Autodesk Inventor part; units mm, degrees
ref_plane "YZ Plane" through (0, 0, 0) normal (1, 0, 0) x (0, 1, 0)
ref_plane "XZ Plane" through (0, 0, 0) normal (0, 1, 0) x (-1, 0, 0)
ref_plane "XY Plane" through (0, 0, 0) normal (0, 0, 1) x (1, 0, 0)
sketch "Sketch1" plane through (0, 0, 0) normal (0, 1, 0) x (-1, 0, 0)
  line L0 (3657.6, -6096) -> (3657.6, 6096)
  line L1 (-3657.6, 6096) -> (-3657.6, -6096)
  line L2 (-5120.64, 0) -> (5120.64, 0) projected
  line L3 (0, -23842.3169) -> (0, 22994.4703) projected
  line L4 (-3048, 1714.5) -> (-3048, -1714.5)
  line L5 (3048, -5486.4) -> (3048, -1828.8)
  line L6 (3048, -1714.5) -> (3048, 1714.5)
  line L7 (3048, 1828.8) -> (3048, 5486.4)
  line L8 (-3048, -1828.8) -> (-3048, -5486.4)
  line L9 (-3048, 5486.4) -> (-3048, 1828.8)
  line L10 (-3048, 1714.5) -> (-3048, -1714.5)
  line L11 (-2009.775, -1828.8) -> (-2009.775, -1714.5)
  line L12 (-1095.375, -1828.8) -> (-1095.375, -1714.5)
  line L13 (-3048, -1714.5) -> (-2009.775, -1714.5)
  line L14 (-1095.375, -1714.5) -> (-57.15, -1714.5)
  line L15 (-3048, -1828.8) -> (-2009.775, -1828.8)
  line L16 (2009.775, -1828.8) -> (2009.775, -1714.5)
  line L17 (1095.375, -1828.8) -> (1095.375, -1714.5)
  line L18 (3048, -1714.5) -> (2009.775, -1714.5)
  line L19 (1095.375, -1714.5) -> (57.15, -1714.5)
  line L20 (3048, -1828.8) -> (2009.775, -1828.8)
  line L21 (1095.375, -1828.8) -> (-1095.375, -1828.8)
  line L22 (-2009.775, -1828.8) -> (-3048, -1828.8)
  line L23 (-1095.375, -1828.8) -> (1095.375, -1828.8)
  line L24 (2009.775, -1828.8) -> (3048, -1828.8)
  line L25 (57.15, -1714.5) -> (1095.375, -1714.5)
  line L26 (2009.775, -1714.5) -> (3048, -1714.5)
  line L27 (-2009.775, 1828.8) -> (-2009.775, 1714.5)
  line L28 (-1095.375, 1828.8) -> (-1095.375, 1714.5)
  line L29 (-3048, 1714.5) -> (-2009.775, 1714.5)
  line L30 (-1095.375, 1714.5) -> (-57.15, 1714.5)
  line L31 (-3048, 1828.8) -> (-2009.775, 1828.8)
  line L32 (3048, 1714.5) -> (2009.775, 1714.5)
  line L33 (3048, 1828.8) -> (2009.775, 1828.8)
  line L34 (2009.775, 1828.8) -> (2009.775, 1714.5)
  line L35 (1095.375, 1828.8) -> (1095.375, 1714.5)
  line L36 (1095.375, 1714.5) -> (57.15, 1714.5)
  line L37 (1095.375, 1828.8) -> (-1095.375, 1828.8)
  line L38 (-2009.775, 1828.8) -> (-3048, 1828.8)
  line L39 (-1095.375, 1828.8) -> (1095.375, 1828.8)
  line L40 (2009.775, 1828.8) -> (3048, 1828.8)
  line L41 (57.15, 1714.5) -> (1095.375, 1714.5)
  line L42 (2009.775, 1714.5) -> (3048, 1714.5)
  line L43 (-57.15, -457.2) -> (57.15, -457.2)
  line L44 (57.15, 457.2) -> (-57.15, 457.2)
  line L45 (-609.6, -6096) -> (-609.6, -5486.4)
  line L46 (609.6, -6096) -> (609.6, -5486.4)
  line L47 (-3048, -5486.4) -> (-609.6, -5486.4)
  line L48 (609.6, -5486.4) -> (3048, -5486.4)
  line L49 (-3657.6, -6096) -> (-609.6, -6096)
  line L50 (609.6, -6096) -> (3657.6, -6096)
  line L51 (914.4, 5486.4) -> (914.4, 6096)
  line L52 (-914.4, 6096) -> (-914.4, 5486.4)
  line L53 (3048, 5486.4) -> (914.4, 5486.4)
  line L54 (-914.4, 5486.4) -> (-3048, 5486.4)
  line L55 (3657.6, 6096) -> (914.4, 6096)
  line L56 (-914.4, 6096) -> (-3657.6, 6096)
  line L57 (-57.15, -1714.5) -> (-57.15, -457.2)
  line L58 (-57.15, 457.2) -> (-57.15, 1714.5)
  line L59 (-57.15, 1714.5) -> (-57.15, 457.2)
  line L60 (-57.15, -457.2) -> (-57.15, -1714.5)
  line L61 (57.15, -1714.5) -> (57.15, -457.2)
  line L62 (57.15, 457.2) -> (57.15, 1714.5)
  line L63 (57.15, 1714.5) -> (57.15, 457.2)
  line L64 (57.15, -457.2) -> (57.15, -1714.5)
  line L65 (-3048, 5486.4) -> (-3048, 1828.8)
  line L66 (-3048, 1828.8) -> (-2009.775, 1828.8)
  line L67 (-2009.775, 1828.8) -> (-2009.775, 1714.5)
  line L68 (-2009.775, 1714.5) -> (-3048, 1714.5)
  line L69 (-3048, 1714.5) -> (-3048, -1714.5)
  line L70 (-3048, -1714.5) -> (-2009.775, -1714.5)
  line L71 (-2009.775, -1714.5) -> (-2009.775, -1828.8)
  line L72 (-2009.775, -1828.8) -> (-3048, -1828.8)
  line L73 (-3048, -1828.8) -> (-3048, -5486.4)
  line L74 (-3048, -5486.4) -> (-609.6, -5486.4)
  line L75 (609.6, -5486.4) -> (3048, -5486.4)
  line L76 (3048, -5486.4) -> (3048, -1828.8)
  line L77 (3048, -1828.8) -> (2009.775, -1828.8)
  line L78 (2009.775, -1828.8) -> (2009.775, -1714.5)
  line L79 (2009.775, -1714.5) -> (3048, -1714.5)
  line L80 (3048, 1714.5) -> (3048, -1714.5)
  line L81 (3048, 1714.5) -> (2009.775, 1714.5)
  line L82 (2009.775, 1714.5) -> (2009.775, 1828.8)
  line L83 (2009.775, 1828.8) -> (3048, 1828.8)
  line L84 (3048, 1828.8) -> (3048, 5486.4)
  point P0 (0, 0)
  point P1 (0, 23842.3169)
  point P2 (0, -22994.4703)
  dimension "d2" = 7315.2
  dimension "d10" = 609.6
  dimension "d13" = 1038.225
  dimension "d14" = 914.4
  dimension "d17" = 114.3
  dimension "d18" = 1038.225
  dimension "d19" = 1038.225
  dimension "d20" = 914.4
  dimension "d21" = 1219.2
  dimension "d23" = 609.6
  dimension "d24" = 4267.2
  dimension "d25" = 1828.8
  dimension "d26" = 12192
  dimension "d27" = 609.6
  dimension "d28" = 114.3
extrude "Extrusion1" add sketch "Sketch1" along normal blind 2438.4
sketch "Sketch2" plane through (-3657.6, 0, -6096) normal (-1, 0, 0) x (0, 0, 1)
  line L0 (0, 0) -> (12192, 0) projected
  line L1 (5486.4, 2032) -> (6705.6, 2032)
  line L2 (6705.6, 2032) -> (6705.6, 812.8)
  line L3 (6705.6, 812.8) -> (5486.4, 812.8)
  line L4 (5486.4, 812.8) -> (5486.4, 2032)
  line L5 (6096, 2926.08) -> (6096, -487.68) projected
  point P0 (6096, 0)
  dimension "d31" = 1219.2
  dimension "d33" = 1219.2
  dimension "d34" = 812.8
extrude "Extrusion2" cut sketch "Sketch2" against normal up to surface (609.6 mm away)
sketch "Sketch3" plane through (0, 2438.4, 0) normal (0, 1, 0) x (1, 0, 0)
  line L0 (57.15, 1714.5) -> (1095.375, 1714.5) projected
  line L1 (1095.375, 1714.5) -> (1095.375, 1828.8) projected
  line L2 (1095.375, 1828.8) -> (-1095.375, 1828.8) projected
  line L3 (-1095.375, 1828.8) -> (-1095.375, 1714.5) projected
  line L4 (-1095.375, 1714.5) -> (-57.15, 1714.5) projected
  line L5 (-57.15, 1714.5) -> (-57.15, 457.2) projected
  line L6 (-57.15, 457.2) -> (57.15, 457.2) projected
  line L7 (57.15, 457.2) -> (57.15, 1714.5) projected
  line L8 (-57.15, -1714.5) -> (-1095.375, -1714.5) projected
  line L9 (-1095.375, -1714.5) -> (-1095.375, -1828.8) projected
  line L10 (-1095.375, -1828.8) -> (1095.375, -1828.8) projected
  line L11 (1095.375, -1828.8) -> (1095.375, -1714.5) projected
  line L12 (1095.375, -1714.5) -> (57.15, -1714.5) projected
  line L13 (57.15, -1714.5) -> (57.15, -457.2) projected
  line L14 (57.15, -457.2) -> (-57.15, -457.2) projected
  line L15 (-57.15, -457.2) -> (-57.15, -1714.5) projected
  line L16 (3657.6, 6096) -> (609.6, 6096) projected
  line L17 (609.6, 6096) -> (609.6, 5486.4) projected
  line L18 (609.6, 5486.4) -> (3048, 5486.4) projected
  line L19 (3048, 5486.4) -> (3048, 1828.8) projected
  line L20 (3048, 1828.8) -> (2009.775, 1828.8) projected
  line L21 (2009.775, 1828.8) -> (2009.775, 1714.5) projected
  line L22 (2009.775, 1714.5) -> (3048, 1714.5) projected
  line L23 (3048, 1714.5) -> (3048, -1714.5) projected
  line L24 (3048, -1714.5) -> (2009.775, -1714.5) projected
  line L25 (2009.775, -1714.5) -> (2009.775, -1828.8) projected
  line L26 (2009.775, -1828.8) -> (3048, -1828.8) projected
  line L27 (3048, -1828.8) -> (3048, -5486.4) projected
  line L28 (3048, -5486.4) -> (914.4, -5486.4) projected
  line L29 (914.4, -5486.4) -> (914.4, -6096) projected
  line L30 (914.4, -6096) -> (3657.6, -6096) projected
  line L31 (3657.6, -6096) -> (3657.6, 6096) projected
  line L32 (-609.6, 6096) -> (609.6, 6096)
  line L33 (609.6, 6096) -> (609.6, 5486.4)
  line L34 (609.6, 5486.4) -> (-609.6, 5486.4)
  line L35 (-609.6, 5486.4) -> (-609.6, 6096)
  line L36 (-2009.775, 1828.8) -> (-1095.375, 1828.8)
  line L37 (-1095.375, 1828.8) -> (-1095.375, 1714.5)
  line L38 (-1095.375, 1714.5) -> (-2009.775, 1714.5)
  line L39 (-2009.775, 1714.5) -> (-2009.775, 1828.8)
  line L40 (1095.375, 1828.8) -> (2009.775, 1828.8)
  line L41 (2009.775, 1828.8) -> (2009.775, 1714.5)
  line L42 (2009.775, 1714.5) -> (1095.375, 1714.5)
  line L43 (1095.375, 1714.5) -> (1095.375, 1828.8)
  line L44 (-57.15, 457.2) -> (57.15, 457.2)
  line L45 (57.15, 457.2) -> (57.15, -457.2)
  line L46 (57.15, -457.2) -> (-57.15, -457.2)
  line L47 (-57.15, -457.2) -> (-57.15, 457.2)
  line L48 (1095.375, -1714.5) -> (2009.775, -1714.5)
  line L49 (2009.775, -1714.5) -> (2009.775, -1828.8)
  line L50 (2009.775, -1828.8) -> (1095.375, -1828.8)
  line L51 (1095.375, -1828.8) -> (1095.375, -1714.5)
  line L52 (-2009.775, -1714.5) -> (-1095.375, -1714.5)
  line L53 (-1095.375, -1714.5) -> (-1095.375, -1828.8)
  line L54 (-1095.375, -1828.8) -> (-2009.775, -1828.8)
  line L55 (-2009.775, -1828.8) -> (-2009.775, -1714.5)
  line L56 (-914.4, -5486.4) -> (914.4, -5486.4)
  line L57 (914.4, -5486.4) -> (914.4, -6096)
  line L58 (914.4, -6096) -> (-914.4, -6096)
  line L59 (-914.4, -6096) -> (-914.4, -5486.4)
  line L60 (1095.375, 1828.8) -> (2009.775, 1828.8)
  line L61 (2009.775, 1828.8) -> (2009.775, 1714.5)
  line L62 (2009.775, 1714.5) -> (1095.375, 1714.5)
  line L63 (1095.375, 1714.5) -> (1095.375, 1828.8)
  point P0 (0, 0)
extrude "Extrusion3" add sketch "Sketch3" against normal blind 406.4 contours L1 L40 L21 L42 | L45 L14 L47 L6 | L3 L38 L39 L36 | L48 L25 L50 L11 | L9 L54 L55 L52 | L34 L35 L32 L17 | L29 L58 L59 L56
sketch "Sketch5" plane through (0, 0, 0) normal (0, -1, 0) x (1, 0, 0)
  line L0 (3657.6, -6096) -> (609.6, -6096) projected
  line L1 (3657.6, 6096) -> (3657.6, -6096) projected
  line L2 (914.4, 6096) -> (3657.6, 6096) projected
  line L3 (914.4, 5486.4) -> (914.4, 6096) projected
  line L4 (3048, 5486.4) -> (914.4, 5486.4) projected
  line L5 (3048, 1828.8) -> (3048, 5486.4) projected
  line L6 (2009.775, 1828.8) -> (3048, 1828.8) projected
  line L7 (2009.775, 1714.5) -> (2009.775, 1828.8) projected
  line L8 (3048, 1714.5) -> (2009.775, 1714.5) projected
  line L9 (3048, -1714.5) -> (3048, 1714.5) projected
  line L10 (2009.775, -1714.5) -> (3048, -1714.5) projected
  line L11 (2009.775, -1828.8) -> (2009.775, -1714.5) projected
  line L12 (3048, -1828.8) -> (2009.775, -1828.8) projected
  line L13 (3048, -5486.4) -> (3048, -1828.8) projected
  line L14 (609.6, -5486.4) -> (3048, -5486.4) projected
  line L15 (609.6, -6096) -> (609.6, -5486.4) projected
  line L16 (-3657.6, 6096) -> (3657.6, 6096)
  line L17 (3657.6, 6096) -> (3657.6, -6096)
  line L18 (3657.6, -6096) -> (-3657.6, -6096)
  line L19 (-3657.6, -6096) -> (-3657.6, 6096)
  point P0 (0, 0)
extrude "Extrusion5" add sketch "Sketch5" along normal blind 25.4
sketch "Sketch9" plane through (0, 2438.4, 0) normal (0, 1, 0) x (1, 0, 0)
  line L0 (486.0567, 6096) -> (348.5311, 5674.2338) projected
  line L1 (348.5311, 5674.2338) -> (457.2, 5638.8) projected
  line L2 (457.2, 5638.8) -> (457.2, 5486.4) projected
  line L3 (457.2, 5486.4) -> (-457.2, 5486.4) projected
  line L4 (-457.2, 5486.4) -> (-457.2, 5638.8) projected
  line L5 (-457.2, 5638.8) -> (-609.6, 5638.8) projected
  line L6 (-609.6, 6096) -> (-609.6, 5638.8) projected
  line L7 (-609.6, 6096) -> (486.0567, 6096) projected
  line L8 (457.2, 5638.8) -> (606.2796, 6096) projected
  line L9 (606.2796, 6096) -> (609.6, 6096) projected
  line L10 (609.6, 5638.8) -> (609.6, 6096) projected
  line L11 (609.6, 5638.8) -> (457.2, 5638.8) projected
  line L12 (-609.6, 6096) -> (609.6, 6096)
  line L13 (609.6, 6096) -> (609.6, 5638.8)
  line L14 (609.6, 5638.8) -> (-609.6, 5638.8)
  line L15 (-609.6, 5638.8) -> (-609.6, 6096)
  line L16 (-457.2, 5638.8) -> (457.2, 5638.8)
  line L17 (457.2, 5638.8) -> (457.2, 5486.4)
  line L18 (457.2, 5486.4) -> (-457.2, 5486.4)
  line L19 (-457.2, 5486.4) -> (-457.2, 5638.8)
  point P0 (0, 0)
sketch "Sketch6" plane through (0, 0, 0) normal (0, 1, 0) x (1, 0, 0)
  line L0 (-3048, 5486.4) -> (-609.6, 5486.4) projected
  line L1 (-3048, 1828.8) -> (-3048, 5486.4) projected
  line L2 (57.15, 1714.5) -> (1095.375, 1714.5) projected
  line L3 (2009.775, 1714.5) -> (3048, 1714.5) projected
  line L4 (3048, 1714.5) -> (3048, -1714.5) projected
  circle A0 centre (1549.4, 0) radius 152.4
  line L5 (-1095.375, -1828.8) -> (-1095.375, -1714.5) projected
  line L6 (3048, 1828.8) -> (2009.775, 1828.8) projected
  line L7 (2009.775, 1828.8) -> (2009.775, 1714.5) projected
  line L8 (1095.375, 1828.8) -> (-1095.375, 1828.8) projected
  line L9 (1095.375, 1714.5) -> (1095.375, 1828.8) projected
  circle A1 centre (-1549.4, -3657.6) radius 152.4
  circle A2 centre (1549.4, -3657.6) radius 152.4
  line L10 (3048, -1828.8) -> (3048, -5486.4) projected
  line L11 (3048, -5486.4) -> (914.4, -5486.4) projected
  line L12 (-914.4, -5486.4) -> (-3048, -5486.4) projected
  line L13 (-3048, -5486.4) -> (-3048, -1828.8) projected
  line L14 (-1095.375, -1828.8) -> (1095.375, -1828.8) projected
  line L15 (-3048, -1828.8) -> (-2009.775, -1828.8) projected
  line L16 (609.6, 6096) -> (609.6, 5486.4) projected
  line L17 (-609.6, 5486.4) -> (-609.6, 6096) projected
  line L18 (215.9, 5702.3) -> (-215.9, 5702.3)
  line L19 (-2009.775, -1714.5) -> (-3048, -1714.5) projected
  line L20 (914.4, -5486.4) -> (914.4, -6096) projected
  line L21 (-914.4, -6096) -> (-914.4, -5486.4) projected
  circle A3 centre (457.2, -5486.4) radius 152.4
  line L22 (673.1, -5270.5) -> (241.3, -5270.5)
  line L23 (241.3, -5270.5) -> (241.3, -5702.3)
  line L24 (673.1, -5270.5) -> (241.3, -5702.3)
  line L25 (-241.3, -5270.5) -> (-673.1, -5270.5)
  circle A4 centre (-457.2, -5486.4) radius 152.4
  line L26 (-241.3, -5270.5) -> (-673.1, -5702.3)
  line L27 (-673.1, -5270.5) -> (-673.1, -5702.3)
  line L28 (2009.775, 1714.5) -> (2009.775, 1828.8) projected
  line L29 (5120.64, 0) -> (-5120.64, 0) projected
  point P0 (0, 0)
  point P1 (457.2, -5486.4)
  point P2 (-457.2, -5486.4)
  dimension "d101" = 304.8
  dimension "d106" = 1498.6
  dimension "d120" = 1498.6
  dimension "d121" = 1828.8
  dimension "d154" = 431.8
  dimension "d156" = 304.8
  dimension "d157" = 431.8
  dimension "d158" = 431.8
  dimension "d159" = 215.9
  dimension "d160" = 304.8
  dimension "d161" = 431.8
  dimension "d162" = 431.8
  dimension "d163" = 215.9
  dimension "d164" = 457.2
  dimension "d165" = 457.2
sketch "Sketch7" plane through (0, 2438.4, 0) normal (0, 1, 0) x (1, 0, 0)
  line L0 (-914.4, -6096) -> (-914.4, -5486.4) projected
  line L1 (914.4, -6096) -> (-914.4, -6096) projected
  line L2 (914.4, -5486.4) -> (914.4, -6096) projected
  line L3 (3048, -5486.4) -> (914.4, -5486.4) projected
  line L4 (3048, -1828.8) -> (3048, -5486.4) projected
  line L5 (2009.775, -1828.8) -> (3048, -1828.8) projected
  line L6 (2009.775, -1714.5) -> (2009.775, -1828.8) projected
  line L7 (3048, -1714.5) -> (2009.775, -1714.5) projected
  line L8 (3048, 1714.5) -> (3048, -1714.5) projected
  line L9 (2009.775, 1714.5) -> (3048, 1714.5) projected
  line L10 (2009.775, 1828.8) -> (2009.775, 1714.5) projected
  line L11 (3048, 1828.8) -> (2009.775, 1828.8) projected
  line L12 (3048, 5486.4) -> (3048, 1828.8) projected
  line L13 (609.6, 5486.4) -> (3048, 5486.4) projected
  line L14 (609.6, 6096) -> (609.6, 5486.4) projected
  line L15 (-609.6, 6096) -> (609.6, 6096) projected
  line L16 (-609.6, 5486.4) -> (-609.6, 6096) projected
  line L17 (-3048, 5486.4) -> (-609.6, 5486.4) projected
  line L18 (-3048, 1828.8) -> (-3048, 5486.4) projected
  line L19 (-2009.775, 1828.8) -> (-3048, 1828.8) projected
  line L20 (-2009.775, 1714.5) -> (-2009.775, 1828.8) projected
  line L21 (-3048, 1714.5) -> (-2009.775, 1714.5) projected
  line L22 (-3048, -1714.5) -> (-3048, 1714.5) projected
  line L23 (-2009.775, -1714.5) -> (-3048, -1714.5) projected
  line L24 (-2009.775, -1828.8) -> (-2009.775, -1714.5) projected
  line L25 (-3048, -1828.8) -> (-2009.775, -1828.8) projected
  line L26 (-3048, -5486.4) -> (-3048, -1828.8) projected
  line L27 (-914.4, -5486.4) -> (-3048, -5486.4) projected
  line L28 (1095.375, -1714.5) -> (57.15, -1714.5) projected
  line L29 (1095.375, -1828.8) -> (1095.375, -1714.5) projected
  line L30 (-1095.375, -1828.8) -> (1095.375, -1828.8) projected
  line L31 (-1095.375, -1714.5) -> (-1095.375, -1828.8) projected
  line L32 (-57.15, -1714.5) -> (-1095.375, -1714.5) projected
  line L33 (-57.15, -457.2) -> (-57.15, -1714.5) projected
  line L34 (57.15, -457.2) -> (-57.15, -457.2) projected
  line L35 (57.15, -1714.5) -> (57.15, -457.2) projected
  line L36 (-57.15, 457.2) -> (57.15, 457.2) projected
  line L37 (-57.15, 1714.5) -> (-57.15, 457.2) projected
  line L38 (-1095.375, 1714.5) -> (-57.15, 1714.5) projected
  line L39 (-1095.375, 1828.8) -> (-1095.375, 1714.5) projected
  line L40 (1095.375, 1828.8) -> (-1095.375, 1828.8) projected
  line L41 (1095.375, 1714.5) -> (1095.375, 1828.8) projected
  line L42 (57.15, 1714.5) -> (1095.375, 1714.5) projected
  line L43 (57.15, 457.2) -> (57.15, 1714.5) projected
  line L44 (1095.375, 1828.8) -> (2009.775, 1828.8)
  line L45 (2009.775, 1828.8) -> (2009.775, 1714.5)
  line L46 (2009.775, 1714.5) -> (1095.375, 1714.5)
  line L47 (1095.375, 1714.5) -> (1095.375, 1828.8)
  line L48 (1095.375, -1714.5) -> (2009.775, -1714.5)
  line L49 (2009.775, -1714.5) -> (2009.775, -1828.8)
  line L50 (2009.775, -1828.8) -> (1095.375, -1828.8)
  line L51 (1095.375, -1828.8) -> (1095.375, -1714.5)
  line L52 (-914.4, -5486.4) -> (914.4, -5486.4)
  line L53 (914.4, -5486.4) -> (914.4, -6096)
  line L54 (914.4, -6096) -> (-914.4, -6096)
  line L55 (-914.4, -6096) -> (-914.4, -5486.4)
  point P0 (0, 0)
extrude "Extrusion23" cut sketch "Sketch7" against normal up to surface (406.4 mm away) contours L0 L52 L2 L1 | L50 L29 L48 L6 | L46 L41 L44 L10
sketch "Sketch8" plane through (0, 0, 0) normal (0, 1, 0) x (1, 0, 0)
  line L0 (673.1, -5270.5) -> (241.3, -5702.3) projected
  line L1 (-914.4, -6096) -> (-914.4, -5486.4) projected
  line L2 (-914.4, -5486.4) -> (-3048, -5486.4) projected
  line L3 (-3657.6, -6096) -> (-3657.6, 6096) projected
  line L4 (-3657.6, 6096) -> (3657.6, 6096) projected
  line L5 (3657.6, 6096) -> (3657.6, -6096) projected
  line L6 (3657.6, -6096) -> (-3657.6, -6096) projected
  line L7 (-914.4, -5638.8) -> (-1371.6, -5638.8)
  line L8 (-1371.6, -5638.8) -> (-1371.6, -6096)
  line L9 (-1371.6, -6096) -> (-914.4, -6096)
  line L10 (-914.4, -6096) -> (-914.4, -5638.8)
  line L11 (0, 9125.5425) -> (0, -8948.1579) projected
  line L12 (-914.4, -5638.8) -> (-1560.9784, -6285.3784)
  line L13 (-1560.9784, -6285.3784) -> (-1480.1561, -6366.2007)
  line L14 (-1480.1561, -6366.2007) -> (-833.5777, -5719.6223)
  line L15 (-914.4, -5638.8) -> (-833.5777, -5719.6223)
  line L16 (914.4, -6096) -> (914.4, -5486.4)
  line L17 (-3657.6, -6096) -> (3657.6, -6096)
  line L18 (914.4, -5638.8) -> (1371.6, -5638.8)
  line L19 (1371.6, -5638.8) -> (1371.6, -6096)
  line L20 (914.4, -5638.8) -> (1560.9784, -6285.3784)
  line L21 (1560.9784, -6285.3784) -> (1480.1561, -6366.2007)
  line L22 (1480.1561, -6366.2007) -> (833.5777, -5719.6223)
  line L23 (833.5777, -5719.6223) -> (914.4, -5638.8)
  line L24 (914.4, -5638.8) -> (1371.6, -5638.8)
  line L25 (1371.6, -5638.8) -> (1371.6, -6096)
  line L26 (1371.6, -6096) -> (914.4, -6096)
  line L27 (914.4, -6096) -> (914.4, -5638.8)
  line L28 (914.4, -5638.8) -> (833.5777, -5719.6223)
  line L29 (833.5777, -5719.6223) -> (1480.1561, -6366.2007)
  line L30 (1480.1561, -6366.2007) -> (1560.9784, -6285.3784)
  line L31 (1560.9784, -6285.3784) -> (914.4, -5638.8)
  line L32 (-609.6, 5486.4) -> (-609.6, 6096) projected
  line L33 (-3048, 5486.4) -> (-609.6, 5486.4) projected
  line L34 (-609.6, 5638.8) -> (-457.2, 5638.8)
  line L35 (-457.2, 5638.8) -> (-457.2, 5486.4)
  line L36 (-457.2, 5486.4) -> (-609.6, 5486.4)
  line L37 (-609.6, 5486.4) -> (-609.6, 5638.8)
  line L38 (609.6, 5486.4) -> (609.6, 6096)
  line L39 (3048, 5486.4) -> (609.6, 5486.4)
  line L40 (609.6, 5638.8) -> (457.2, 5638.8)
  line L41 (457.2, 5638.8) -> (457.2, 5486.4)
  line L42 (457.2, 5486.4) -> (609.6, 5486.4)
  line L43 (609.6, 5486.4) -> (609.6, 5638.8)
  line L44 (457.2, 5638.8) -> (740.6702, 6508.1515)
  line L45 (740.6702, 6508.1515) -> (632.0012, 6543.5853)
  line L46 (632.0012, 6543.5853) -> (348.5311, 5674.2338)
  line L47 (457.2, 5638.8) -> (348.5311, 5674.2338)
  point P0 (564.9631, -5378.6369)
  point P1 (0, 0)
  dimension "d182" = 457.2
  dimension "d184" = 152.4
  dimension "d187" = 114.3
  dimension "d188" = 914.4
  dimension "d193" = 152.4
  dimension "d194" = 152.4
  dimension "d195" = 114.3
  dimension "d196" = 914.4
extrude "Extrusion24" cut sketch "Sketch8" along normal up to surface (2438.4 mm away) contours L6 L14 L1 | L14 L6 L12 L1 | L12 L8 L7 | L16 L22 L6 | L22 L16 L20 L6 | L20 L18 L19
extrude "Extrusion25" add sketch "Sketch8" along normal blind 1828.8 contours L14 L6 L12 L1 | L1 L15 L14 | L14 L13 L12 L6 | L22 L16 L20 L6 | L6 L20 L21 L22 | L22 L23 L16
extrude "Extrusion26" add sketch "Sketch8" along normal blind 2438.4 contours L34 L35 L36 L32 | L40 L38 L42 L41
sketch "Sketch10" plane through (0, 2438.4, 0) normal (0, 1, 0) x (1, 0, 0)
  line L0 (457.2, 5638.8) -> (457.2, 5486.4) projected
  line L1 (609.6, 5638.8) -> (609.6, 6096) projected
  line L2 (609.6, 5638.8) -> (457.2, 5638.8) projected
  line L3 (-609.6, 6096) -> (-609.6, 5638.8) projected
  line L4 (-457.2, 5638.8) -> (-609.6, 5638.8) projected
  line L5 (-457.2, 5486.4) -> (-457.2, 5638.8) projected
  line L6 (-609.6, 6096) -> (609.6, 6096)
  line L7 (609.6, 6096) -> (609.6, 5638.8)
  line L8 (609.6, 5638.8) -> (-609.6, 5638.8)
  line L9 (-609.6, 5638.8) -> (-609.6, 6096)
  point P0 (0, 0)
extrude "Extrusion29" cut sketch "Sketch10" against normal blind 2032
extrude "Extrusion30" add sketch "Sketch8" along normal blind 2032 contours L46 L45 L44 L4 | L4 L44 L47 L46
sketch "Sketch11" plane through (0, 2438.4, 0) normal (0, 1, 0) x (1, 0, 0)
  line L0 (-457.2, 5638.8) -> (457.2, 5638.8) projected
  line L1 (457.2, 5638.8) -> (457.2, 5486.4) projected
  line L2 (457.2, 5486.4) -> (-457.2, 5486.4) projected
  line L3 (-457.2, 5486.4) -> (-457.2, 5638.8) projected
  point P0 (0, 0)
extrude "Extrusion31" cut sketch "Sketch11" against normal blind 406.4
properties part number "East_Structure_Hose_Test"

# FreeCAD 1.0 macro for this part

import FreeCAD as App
import Part
import Sketcher
from FreeCAD import Vector
Q = App.Units.Quantity

doc = App.newDocument("Part")
body = doc.addObject("PartDesign::Body", "Body")
body.AllowCompound = True

sketch1 = doc.addObject("Sketcher::SketchObject", "Sketch")
body.addObject(sketch1)
sketch1.AttachmentSupport = (doc.XZ_Plane, [""])
sketch1.MapMode = "FlatFace"
sketch1.addGeometry([
    Part.LineSegment(Vector(-609.6, -6096, 0), Vector(-3657.6, -6096, 0)),
    Part.LineSegment(Vector(-3657.6, -6096, 0), Vector(-3657.6, 6096, 0)),
    Part.LineSegment(Vector(-3657.6, 6096, 0), Vector(-914.4, 6096, 0)),
    Part.LineSegment(Vector(-914.4, 6096, 0), Vector(-914.4, 5486.4, 0)),
    Part.LineSegment(Vector(-914.4, 5486.4, 0), Vector(-3048, 5486.4, 0)),
    Part.LineSegment(Vector(-3048, 5486.4, 0), Vector(-3048, 1828.8, 0)),
    Part.LineSegment(Vector(-3048, 1828.8, 0), Vector(-2009.775, 1828.8, 0)),
    Part.LineSegment(Vector(-2009.775, 1828.8, 0), Vector(-2009.775, 1714.5, 0)),
    Part.LineSegment(Vector(-2009.775, 1714.5, 0), Vector(-3048, 1714.5, 0)),
    Part.LineSegment(Vector(-3048, 1714.5, 0), Vector(-3048, -1714.5, 0)),
    Part.LineSegment(Vector(-3048, -1714.5, 0), Vector(-2009.775, -1714.5, 0)),
    Part.LineSegment(Vector(-2009.775, -1714.5, 0), Vector(-2009.775, -1828.8, 0)),
    Part.LineSegment(Vector(-2009.775, -1828.8, 0), Vector(-3048, -1828.8, 0)),
    Part.LineSegment(Vector(-3048, -1828.8, 0), Vector(-3048, -5486.4, 0)),
    Part.LineSegment(Vector(-3048, -5486.4, 0), Vector(-609.6, -5486.4, 0)),
    Part.LineSegment(Vector(-609.6, -5486.4, 0), Vector(-609.6, -6096, 0)),
    Part.LineSegment(Vector(-57.15, -457.2, 0), Vector(57.15, -457.2, 0)),
    Part.LineSegment(Vector(57.15, -457.2, 0), Vector(57.15, -1714.5, 0)),
    Part.LineSegment(Vector(57.15, -1714.5, 0), Vector(1095.375, -1714.5, 0)),
    Part.LineSegment(Vector(1095.375, -1714.5, 0), Vector(1095.375, -1828.8, 0)),
    Part.LineSegment(Vector(1095.375, -1828.8, 0), Vector(-1095.375, -1828.8, 0)),
    Part.LineSegment(Vector(-1095.375, -1828.8, 0), Vector(-1095.375, -1714.5, 0)),
    Part.LineSegment(Vector(-1095.375, -1714.5, 0), Vector(-57.15, -1714.5, 0)),
    Part.LineSegment(Vector(-57.15, -1714.5, 0), Vector(-57.15, -457.2, 0)),
    Part.LineSegment(Vector(3048, -1714.5, 0), Vector(3048, 1714.5, 0)),
    Part.LineSegment(Vector(3048, 1714.5, 0), Vector(2009.775, 1714.5, 0)),
    Part.LineSegment(Vector(2009.775, 1714.5, 0), Vector(2009.775, 1828.8, 0)),
    Part.LineSegment(Vector(2009.775, 1828.8, 0), Vector(3048, 1828.8, 0)),
    Part.LineSegment(Vector(3048, 1828.8, 0), Vector(3048, 5486.4, 0)),
    Part.LineSegment(Vector(3048, 5486.4, 0), Vector(914.4, 5486.4, 0)),
    Part.LineSegment(Vector(914.4, 5486.4, 0), Vector(914.4, 6096, 0)),
    Part.LineSegment(Vector(914.4, 6096, 0), Vector(3657.6, 6096, 0)),
    Part.LineSegment(Vector(3657.6, 6096, 0), Vector(3657.6, -6096, 0)),
    Part.LineSegment(Vector(3657.6, -6096, 0), Vector(609.6, -6096, 0)),
    Part.LineSegment(Vector(609.6, -6096, 0), Vector(609.6, -5486.4, 0)),
    Part.LineSegment(Vector(609.6, -5486.4, 0), Vector(3048, -5486.4, 0)),
    Part.LineSegment(Vector(3048, -5486.4, 0), Vector(3048, -1828.8, 0)),
    Part.LineSegment(Vector(3048, -1828.8, 0), Vector(2009.775, -1828.8, 0)),
    Part.LineSegment(Vector(2009.775, -1828.8, 0), Vector(2009.775, -1714.5, 0)),
    Part.LineSegment(Vector(2009.775, -1714.5, 0), Vector(3048, -1714.5, 0)),
    Part.LineSegment(Vector(57.15, 457.2, 0), Vector(-57.15, 457.2, 0)),
    Part.LineSegment(Vector(-57.15, 457.2, 0), Vector(-57.15, 1714.5, 0)),
    Part.LineSegment(Vector(-57.15, 1714.5, 0), Vector(-1095.375, 1714.5, 0)),
    Part.LineSegment(Vector(-1095.375, 1714.5, 0), Vector(-1095.375, 1828.8, 0)),
    Part.LineSegment(Vector(-1095.375, 1828.8, 0), Vector(1095.375, 1828.8, 0)),
    Part.LineSegment(Vector(1095.375, 1828.8, 0), Vector(1095.375, 1714.5, 0)),
    Part.LineSegment(Vector(1095.375, 1714.5, 0), Vector(57.15, 1714.5, 0)),
    Part.LineSegment(Vector(57.15, 1714.5, 0), Vector(57.15, 457.2, 0)),
], False)
sketch1.addConstraint([
    Sketcher.Constraint("Coincident", 0, 2, 1, 1),
    Sketcher.Constraint("Coincident", 1, 2, 2, 1),
    Sketcher.Constraint("Coincident", 2, 2, 3, 1),
    Sketcher.Constraint("Coincident", 3, 2, 4, 1),
    Sketcher.Constraint("Coincident", 4, 2, 5, 1),
    Sketcher.Constraint("Coincident", 5, 2, 6, 1),
    Sketcher.Constraint("Coincident", 6, 2, 7, 1),
    Sketcher.Constraint("Coincident", 7, 2, 8, 1),
    Sketcher.Constraint("Coincident", 8, 2, 9, 1),
    Sketcher.Constraint("Coincident", 9, 2, 10, 1),
    Sketcher.Constraint("Coincident", 10, 2, 11, 1),
    Sketcher.Constraint("Coincident", 11, 2, 12, 1),
    Sketcher.Constraint("Coincident", 12, 2, 13, 1),
    Sketcher.Constraint("Coincident", 13, 2, 14, 1),
    Sketcher.Constraint("Coincident", 14, 2, 15, 1),
    Sketcher.Constraint("Coincident", 15, 2, 0, 1),
    Sketcher.Constraint("Coincident", 16, 2, 17, 1),
    Sketcher.Constraint("Coincident", 17, 2, 18, 1),
    Sketcher.Constraint("Coincident", 18, 2, 19, 1),
    Sketcher.Constraint("Coincident", 19, 2, 20, 1),
    Sketcher.Constraint("Coincident", 20, 2, 21, 1),
    Sketcher.Constraint("Coincident", 21, 2, 22, 1),
    Sketcher.Constraint("Coincident", 22, 2, 23, 1),
    Sketcher.Constraint("Coincident", 23, 2, 16, 1),
    Sketcher.Constraint("Coincident", 24, 2, 25, 1),
    Sketcher.Constraint("Coincident", 25, 2, 26, 1),
    Sketcher.Constraint("Coincident", 26, 2, 27, 1),
    Sketcher.Constraint("Coincident", 27, 2, 28, 1),
    Sketcher.Constraint("Coincident", 28, 2, 29, 1),
    Sketcher.Constraint("Coincident", 29, 2, 30, 1),
    Sketcher.Constraint("Coincident", 30, 2, 31, 1),
    Sketcher.Constraint("Coincident", 31, 2, 32, 1),
    Sketcher.Constraint("Coincident", 32, 2, 33, 1),
    Sketcher.Constraint("Coincident", 33, 2, 34, 1),
    Sketcher.Constraint("Coincident", 34, 2, 35, 1),
    Sketcher.Constraint("Coincident", 35, 2, 36, 1),
    Sketcher.Constraint("Coincident", 36, 2, 37, 1),
    Sketcher.Constraint("Coincident", 37, 2, 38, 1),
    Sketcher.Constraint("Coincident", 38, 2, 39, 1),
    Sketcher.Constraint("Coincident", 39, 2, 24, 1),
    Sketcher.Constraint("Coincident", 40, 2, 41, 1),
    Sketcher.Constraint("Coincident", 41, 2, 42, 1),
    Sketcher.Constraint("Coincident", 42, 2, 43, 1),
    Sketcher.Constraint("Coincident", 43, 2, 44, 1),
    Sketcher.Constraint("Coincident", 44, 2, 45, 1),
    Sketcher.Constraint("Coincident", 45, 2, 46, 1),
    Sketcher.Constraint("Coincident", 46, 2, 47, 1),
    Sketcher.Constraint("Coincident", 47, 2, 40, 1),
    Sketcher.Constraint("Horizontal", 0),
    Sketcher.Constraint("Vertical", 1),
    Sketcher.Constraint("Horizontal", 2),
    Sketcher.Constraint("Vertical", 3),
    Sketcher.Constraint("Horizontal", 4),
    Sketcher.Constraint("Vertical", 5),
    Sketcher.Constraint("Horizontal", 6),
    Sketcher.Constraint("Vertical", 7),
    Sketcher.Constraint("Horizontal", 8),
    Sketcher.Constraint("Vertical", 9),
    Sketcher.Constraint("Horizontal", 10),
    Sketcher.Constraint("Vertical", 11),
    Sketcher.Constraint("Horizontal", 12),
    Sketcher.Constraint("Vertical", 13),
    Sketcher.Constraint("Horizontal", 14),
    Sketcher.Constraint("Vertical", 15),
    Sketcher.Constraint("Horizontal", 16),
    Sketcher.Constraint("Vertical", 17),
    Sketcher.Constraint("Horizontal", 18),
    Sketcher.Constraint("Vertical", 19),
    Sketcher.Constraint("Horizontal", 20),
    Sketcher.Constraint("Vertical", 21),
    Sketcher.Constraint("Horizontal", 22),
    Sketcher.Constraint("Vertical", 23),
    Sketcher.Constraint("Vertical", 24),
    Sketcher.Constraint("Horizontal", 25),
    Sketcher.Constraint("Vertical", 26),
    Sketcher.Constraint("Horizontal", 27),
    Sketcher.Constraint("Vertical", 28),
    Sketcher.Constraint("Horizontal", 29),
    Sketcher.Constraint("Vertical", 30),
    Sketcher.Constraint("Horizontal", 31),
    Sketcher.Constraint("Vertical", 32),
    Sketcher.Constraint("Horizontal", 33),
    Sketcher.Constraint("Vertical", 34),
    Sketcher.Constraint("Horizontal", 35),
    Sketcher.Constraint("Vertical", 36),
    Sketcher.Constraint("Horizontal", 37),
    Sketcher.Constraint("Vertical", 38),
    Sketcher.Constraint("Horizontal", 39),
    Sketcher.Constraint("Horizontal", 40),
    Sketcher.Constraint("Vertical", 41),
    Sketcher.Constraint("Horizontal", 42),
    Sketcher.Constraint("Vertical", 43),
    Sketcher.Constraint("Horizontal", 44),
    Sketcher.Constraint("Vertical", 45),
    Sketcher.Constraint("Horizontal", 46),
    Sketcher.Constraint("Vertical", 47),
    Sketcher.Constraint("Symmetric", 9, 2, 24, 2, -1, 1),
    Sketcher.Constraint("Symmetric", 11, 2, 26, 2, -1, 1),
    Sketcher.Constraint("Symmetric", 13, 2, 28, 2, -1, 1),
    Sketcher.Constraint("Symmetric", 0, 2, 31, 2, -1, 1),
    Sketcher.Constraint("Symmetric", 4, 2, 35, 2, -1, 1),
    Sketcher.Constraint("Symmetric", 6, 2, 37, 2, -1, 1),
    Sketcher.Constraint("Symmetric", 16, 2, 40, 2, -1, 1),
    Sketcher.Constraint("Symmetric", 18, 2, 42, 2, -1, 1),
    Sketcher.Constraint("Symmetric", 20, 2, 44, 2, -1, 1),
    Sketcher.Constraint("Symmetric", 22, 2, 46, 2, -1, 1),
    Sketcher.Constraint("Symmetric", 18, 2, 21, 2, -2),
    Sketcher.Constraint("Symmetric", 7, 2, 25, 2, -2),
    Sketcher.Constraint("Symmetric", 5, 2, 27, 2, -2),
    Sketcher.Constraint("Symmetric", 3, 2, 29, 2, -2),
    Sketcher.Constraint("Symmetric", 15, 2, 33, 2, -2),
    Sketcher.Constraint("Horizontal", 10, 2, 17, 2),
    Sketcher.Constraint("Horizontal", 12, 2, 19, 2),
    Sketcher.Constraint("Horizontal", 2, 2, 30, 2),
    Sketcher.Constraint("Horizontal", 22, 2, 38, 2),
    Sketcher.Constraint("Vertical", 5, 2, 8, 2),
    Sketcher.Constraint("Vertical", 23, 2, 40, 2),
    Sketcher.Constraint("Equal", 12, 18),
    Sketcher.Constraint("Equal", 40, 7),
    Sketcher.Constraint("DistanceY", 1, 1, 1, 2, Q("480 in")),
    Sketcher.Constraint("DistanceY", 3, 2, 3, 1, Q("24 in")),
    Sketcher.Constraint("DistanceX", 16, 1, 16, 2, Q("4.5 in")),
    Sketcher.Constraint("DistanceX", 2, 2, -1, 1, Q("36 in")),
    Sketcher.Constraint("DistanceY", -1, 1, 5, 2, Q("72 in")),
    Sketcher.Constraint("DistanceX", 14, 2, -1, 1, Q("24 in")),
    Sketcher.Constraint("DistanceX", 1, 2, 4, 2, Q("24 in")),
    Sketcher.Constraint("DistanceX", 11, 2, 20, 2, Q("36 in")),
    Sketcher.Constraint("DistanceX", 15, 2, 32, 2, Q("168 in")),
    Sketcher.Constraint("DistanceY", 23, 2, 40, 2, Q("36 in")),
])
pad1 = doc.addObject("PartDesign::Pad", "Pad")
body.addObject(pad1)
pad1.Profile = sketch1
pad1.Length = Q("96 in")
pad1.Reversed = True

sketch2 = doc.addObject("Sketcher::SketchObject", "Sketch001")
body.addObject(sketch2)
sketch2.AttachmentSupport = (doc.YZ_Plane, [""])
sketch2.MapMode = "FlatFace"
sketch2.AttachmentOffset = App.Placement(Vector(0, 0, -144 * 25.4), App.Rotation())
sketch2.addGeometry([
    Part.LineSegment(Vector(2032, -609.6, 0), Vector(812.8, -609.6, 0)),
    Part.LineSegment(Vector(812.8, -609.6, 0), Vector(812.8, 609.6, 0)),
    Part.LineSegment(Vector(812.8, 609.6, 0), Vector(2032, 609.6, 0)),
    Part.LineSegment(Vector(2032, 609.6, 0), Vector(2032, -609.6, 0)),
], False)
sketch2.addConstraint([
    Sketcher.Constraint("Coincident", 0, 2, 1, 1),
    Sketcher.Constraint("Coincident", 1, 2, 2, 1),
    Sketcher.Constraint("Coincident", 2, 2, 3, 1),
    Sketcher.Constraint("Coincident", 3, 2, 0, 1),
    Sketcher.Constraint("Horizontal", 0),
    Sketcher.Constraint("Vertical", 1),
    Sketcher.Constraint("Horizontal", 2),
    Sketcher.Constraint("Vertical", 3),
    Sketcher.Constraint("Equal", 2, 1),
    Sketcher.Constraint("DistanceX", 0, 2, 0, 1, Q("48 in")),
    Sketcher.Constraint("DistanceX", -1, 1, 0, 2, Q("32 in")),
    Sketcher.Constraint("DistanceY", 0, 2, -1, 1, Q("24 in")),
])
pocket1 = doc.addObject("PartDesign::Pocket", "Pocket")
body.addObject(pocket1)
pocket1.Profile = sketch2
pocket1.Length = Q("24 in")
pocket1.Reversed = True

sketch3 = doc.addObject("Sketcher::SketchObject", "Sketch002")
body.addObject(sketch3)
sketch3.AttachmentSupport = (doc.XZ_Plane, [""])
sketch3.MapMode = "FlatFace"
sketch3.AttachmentOffset = App.Placement(Vector(0, 0, -96 * 25.4), App.Rotation())
sketch3.addGeometry([
    Part.LineSegment(Vector(1095.375, -1828.8, 0), Vector(1095.375, -1714.5, 0)),
    Part.LineSegment(Vector(1095.375, -1714.5, 0), Vector(2009.775, -1714.5, 0)),
    Part.LineSegment(Vector(2009.775, -1714.5, 0), Vector(2009.775, -1828.8, 0)),
    Part.LineSegment(Vector(2009.775, -1828.8, 0), Vector(1095.375, -1828.8, 0)),
    Part.LineSegment(Vector(57.15, 457.2, 0), Vector(57.15, -457.2, 0)),
    Part.LineSegment(Vector(57.15, -457.2, 0), Vector(-57.15, -457.2, 0)),
    Part.LineSegment(Vector(-57.15, -457.2, 0), Vector(-57.15, 457.2, 0)),
    Part.LineSegment(Vector(-57.15, 457.2, 0), Vector(57.15, 457.2, 0)),
    Part.LineSegment(Vector(-1095.375, -1714.5, 0), Vector(-1095.375, -1828.8, 0)),
    Part.LineSegment(Vector(-1095.375, -1828.8, 0), Vector(-2009.775, -1828.8, 0)),
    Part.LineSegment(Vector(-2009.775, -1828.8, 0), Vector(-2009.775, -1714.5, 0)),
    Part.LineSegment(Vector(-2009.775, -1714.5, 0), Vector(-1095.375, -1714.5, 0)),
    Part.LineSegment(Vector(2009.775, 1714.5, 0), Vector(1095.375, 1714.5, 0)),
    Part.LineSegment(Vector(1095.375, 1714.5, 0), Vector(1095.375, 1828.8, 0)),
    Part.LineSegment(Vector(1095.375, 1828.8, 0), Vector(2009.775, 1828.8, 0)),
    Part.LineSegment(Vector(2009.775, 1828.8, 0), Vector(2009.775, 1714.5, 0)),
    Part.LineSegment(Vector(-1095.375, 1828.8, 0), Vector(-1095.375, 1714.5, 0)),
    Part.LineSegment(Vector(-1095.375, 1714.5, 0), Vector(-2009.775, 1714.5, 0)),
    Part.LineSegment(Vector(-2009.775, 1714.5, 0), Vector(-2009.775, 1828.8, 0)),
    Part.LineSegment(Vector(-2009.775, 1828.8, 0), Vector(-1095.375, 1828.8, 0)),
    Part.LineSegment(Vector(-609.6, -5486.4, 0), Vector(609.6, -5486.4, 0)),
    Part.LineSegment(Vector(609.6, -5486.4, 0), Vector(609.6, -6096, 0)),
    Part.LineSegment(Vector(609.6, -6096, 0), Vector(-609.6, -6096, 0)),
    Part.LineSegment(Vector(-609.6, -6096, 0), Vector(-609.6, -5486.4, 0)),
    Part.LineSegment(Vector(914.4, 6096, 0), Vector(914.4, 5486.4, 0)),
    Part.LineSegment(Vector(914.4, 5486.4, 0), Vector(-914.4, 5486.4, 0)),
    Part.LineSegment(Vector(-914.4, 5486.4, 0), Vector(-914.4, 6096, 0)),
    Part.LineSegment(Vector(-914.4, 6096, 0), Vector(914.4, 6096, 0)),
], False)
sketch3.addConstraint([
    Sketcher.Constraint("Coincident", 0, 2, 1, 1),
    Sketcher.Constraint("Coincident", 1, 2, 2, 1),
    Sketcher.Constraint("Coincident", 2, 2, 3, 1),
    Sketcher.Constraint("Coincident", 3, 2, 0, 1),
    Sketcher.Constraint("Coincident", 4, 2, 5, 1),
    Sketcher.Constraint("Coincident", 5, 2, 6, 1),
    Sketcher.Constraint("Coincident", 6, 2, 7, 1),
    Sketcher.Constraint("Coincident", 7, 2, 4, 1),
    Sketcher.Constraint("Coincident", 8, 2, 9, 1),
    Sketcher.Constraint("Coincident", 9, 2, 10, 1),
    Sketcher.Constraint("Coincident", 10, 2, 11, 1),
    Sketcher.Constraint("Coincident", 11, 2, 8, 1),
    Sketcher.Constraint("Coincident", 12, 2, 13, 1),
    Sketcher.Constraint("Coincident", 13, 2, 14, 1),
    Sketcher.Constraint("Coincident", 14, 2, 15, 1),
    Sketcher.Constraint("Coincident", 15, 2, 12, 1),
    Sketcher.Constraint("Coincident", 16, 2, 17, 1),
    Sketcher.Constraint("Coincident", 17, 2, 18, 1),
    Sketcher.Constraint("Coincident", 18, 2, 19, 1),
    Sketcher.Constraint("Coincident", 19, 2, 16, 1),
    Sketcher.Constraint("Coincident", 20, 2, 21, 1),
    Sketcher.Constraint("Coincident", 21, 2, 22, 1),
    Sketcher.Constraint("Coincident", 22, 2, 23, 1),
    Sketcher.Constraint("Coincident", 23, 2, 20, 1),
    Sketcher.Constraint("Coincident", 24, 2, 25, 1),
    Sketcher.Constraint("Coincident", 25, 2, 26, 1),
    Sketcher.Constraint("Coincident", 26, 2, 27, 1),
    Sketcher.Constraint("Coincident", 27, 2, 24, 1),
    Sketcher.Constraint("Vertical", 0),
    Sketcher.Constraint("Horizontal", 1),
    Sketcher.Constraint("Vertical", 2),
    Sketcher.Constraint("Horizontal", 3),
    Sketcher.Constraint("Vertical", 4),
    Sketcher.Constraint("Horizontal", 5),
    Sketcher.Constraint("Vertical", 6),
    Sketcher.Constraint("Horizontal", 7),
    Sketcher.Constraint("Vertical", 8),
    Sketcher.Constraint("Horizontal", 9),
    Sketcher.Constraint("Vertical", 10),
    Sketcher.Constraint("Horizontal", 11),
    Sketcher.Constraint("Horizontal", 12),
    Sketcher.Constraint("Vertical", 13),
    Sketcher.Constraint("Horizontal", 14),
    Sketcher.Constraint("Vertical", 15),
    Sketcher.Constraint("Vertical", 16),
    Sketcher.Constraint("Horizontal", 17),
    Sketcher.Constraint("Vertical", 18),
    Sketcher.Constraint("Horizontal", 19),
    Sketcher.Constraint("Horizontal", 20),
    Sketcher.Constraint("Vertical", 21),
    Sketcher.Constraint("Horizontal", 22),
    Sketcher.Constraint("Vertical", 23),
    Sketcher.Constraint("Vertical", 24),
    Sketcher.Constraint("Horizontal", 25),
    Sketcher.Constraint("Vertical", 26),
    Sketcher.Constraint("Horizontal", 27),
    Sketcher.Constraint("Symmetric", 4, 2, 6, 2, -1, 1),
    Sketcher.Constraint("Symmetric", 11, 2, 12, 2, -1, 1),
    Sketcher.Constraint("Symmetric", 9, 2, 14, 2, -1, 1),
    Sketcher.Constraint("Symmetric", 0, 2, 16, 2, -1, 1),
    Sketcher.Constraint("Symmetric", 2, 2, 18, 2, -1, 1),
    Sketcher.Constraint("Symmetric", 3, 2, 8, 2, -2),
    Sketcher.Constraint("Symmetric", 1, 2, 10, 2, -2),
    Sketcher.Constraint("Equal", 7, 0),
    Sketcher.Constraint("Equal", 19, 4),
    Sketcher.Constraint("Equal", 23, 24),
    Sketcher.Constraint("DistanceX", 1, 1, 1, 2, Q("36 in")),
    Sketcher.Constraint("DistanceX", 20, 1, 20, 2, Q("48 in")),
    Sketcher.Constraint("DistanceX", 25, 2, 25, 1, Q("72 in")),
    Sketcher.Constraint("DistanceY", 21, 2, 21, 1, Q("24 in")),
    Sketcher.Constraint("DistanceX", 5, 2, 5, 1, Q("4.5 in")),
    Sketcher.Constraint("DistanceY", 2, 2, -1, 1, Q("72 in")),
    Sketcher.Constraint("DistanceX", -1, 1, 20, 2, Q("24 in")),
    Sketcher.Constraint("DistanceY", 20, 2, -1, 1, Q("216 in")),
    Sketcher.Constraint("DistanceX", -1, 1, 24, 2, Q("36 in")),
    Sketcher.Constraint("DistanceY", -1, 1, 24, 2, Q("216 in")),
    Sketcher.Constraint("DistanceX", 8, 2, 3, 2, Q("86.25 in")),
])
pad2 = doc.addObject("PartDesign::Pad", "Pad001")
body.addObject(pad2)
pad2.Profile = sketch3
pad2.Length = Q("16 in")

sketch4 = doc.addObject("Sketcher::SketchObject", "Sketch003")
body.addObject(sketch4)
sketch4.AttachmentSupport = (doc.XZ_Plane, [""])
sketch4.MapMode = "FlatFace"
sketch4.addGeometry([
    Part.LineSegment(Vector(3657.6, -6096, 0), Vector(3657.6, 6096, 0)),
    Part.LineSegment(Vector(3657.6, 6096, 0), Vector(-3657.6, 6096, 0)),
    Part.LineSegment(Vector(-3657.6, 6096, 0), Vector(-3657.6, -6096, 0)),
    Part.LineSegment(Vector(-3657.6, -6096, 0), Vector(3657.6, -6096, 0)),
], False)
sketch4.addConstraint([
    Sketcher.Constraint("Coincident", 0, 2, 1, 1),
    Sketcher.Constraint("Coincident", 1, 2, 2, 1),
    Sketcher.Constraint("Coincident", 2, 2, 3, 1),
    Sketcher.Constraint("Coincident", 3, 2, 0, 1),
    Sketcher.Constraint("Vertical", 0),
    Sketcher.Constraint("Horizontal", 1),
    Sketcher.Constraint("Vertical", 2),
    Sketcher.Constraint("Horizontal", 3),
    Sketcher.Constraint("Symmetric", 0, 2, 2, 2, -1, 1),
    Sketcher.Constraint("DistanceX", 1, 2, 1, 1, Q("288 in")),
    Sketcher.Constraint("DistanceY", 0, 1, 0, 2, Q("480 in")),
])
pad3 = doc.addObject("PartDesign::Pad", "Pad002")
body.addObject(pad3)
pad3.Profile = sketch4
pad3.Length = Q("1 in")

sketch5 = doc.addObject("Sketcher::SketchObject", "Sketch004")
body.addObject(sketch5)
sketch5.AttachmentSupport = (doc.XZ_Plane, [""])
sketch5.MapMode = "FlatFace"
sketch5.AttachmentOffset = App.Placement(Vector(0, 0, -96 * 25.4), App.Rotation())
sketch5.addGeometry([
    Part.LineSegment(Vector(-914.4, 5486.4, 0), Vector(-914.4, 6096, 0)),
    Part.LineSegment(Vector(-914.4, 6096, 0), Vector(914.4, 6096, 0)),
    Part.LineSegment(Vector(914.4, 6096, 0), Vector(914.4, 5486.4, 0)),
    Part.LineSegment(Vector(914.4, 5486.4, 0), Vector(-914.4, 5486.4, 0)),
    Part.LineSegment(Vector(1095.375, 1828.8, 0), Vector(2009.775, 1828.8, 0)),
    Part.LineSegment(Vector(2009.775, 1828.8, 0), Vector(2009.775, 1714.5, 0)),
    Part.LineSegment(Vector(2009.775, 1714.5, 0), Vector(1095.375, 1714.5, 0)),
    Part.LineSegment(Vector(1095.375, 1714.5, 0), Vector(1095.375, 1828.8, 0)),
    Part.LineSegment(Vector(1095.375, -1714.5, 0), Vector(2009.775, -1714.5, 0)),
    Part.LineSegment(Vector(2009.775, -1714.5, 0), Vector(2009.775, -1828.8, 0)),
    Part.LineSegment(Vector(2009.775, -1828.8, 0), Vector(1095.375, -1828.8, 0)),
    Part.LineSegment(Vector(1095.375, -1828.8, 0), Vector(1095.375, -1714.5, 0)),
], False)
sketch5.addConstraint([
    Sketcher.Constraint("Coincident", 0, 2, 1, 1),
    Sketcher.Constraint("Coincident", 1, 2, 2, 1),
    Sketcher.Constraint("Coincident", 2, 2, 3, 1),
    Sketcher.Constraint("Coincident", 3, 2, 0, 1),
    Sketcher.Constraint("Coincident", 4, 2, 5, 1),
    Sketcher.Constraint("Coincident", 5, 2, 6, 1),
    Sketcher.Constraint("Coincident", 6, 2, 7, 1),
    Sketcher.Constraint("Coincident", 7, 2, 4, 1),
    Sketcher.Constraint("Coincident", 8, 2, 9, 1),
    Sketcher.Constraint("Coincident", 9, 2, 10, 1),
    Sketcher.Constraint("Coincident", 10, 2, 11, 1),
    Sketcher.Constraint("Coincident", 11, 2, 8, 1),
    Sketcher.Constraint("Vertical", 0),
    Sketcher.Constraint("Horizontal", 1),
    Sketcher.Constraint("Vertical", 2),
    Sketcher.Constraint("Horizontal", 3),
    Sketcher.Constraint("Horizontal", 4),
    Sketcher.Constraint("Vertical", 5),
    Sketcher.Constraint("Horizontal", 6),
    Sketcher.Constraint("Vertical", 7),
    Sketcher.Constraint("Horizontal", 8),
    Sketcher.Constraint("Vertical", 9),
    Sketcher.Constraint("Horizontal", 10),
    Sketcher.Constraint("Vertical", 11),
    Sketcher.Constraint("Symmetric", 5, 2, 8, 2, -1),
    Sketcher.Constraint("Symmetric", 7, 2, 10, 2, -1),
    Sketcher.Constraint("DistanceX", 1, 1, 1, 2, Q("72 in")),
    Sketcher.Constraint("DistanceX", 4, 1, 4, 2, Q("36 in")),
    Sketcher.Constraint("DistanceY", 0, 1, 0, 2, Q("24 in")),
    Sketcher.Constraint("DistanceY", 5, 2, 5, 1, Q("4.5 in")),
    Sketcher.Constraint("DistanceX", 0, 2, -1, 1, Q("36 in")),
    Sketcher.Constraint("DistanceY", -1, 1, 0, 2, Q("240 in")),
    Sketcher.Constraint("DistanceY", -1, 1, 4, 2, Q("72 in")),
    Sketcher.Constraint("DistanceX", -1, 1, 4, 2, Q("79.125 in")),
])
pocket2 = doc.addObject("PartDesign::Pocket", "Pocket001")
body.addObject(pocket2)
pocket2.Profile = sketch5
pocket2.Length = Q("16 in")
pocket2.Reversed = True

sketch6 = doc.addObject("Sketcher::SketchObject", "Sketch005")
body.addObject(sketch6)
sketch6.AttachmentSupport = (doc.XZ_Plane, [""])
sketch6.MapMode = "FlatFace"
sketch6.addGeometry([
    Part.LineSegment(Vector(-914.4, 6096, 0), Vector(-914.4, 5638.8, 0)),
    Part.LineSegment(Vector(-914.4, 5638.8, 0), Vector(-1371.6, 5638.8, 0)),
    Part.LineSegment(Vector(-1371.6, 5638.8, 0), Vector(-1371.6, 6096, 0)),
    Part.LineSegment(Vector(-1371.6, 6096, 0), Vector(-914.4, 6096, 0)),
    Part.LineSegment(Vector(914.4, 6096, 0), Vector(1371.6, 6096, 0)),
    Part.LineSegment(Vector(1371.6, 6096, 0), Vector(1371.6, 5638.8, 0)),
    Part.LineSegment(Vector(1371.6, 5638.8, 0), Vector(914.4, 5638.8, 0)),
    Part.LineSegment(Vector(914.4, 5638.8, 0), Vector(914.4, 6096, 0)),
], False)
sketch6.addConstraint([
    Sketcher.Constraint("Coincident", 0, 2, 1, 1),
    Sketcher.Constraint("Coincident", 1, 2, 2, 1),
    Sketcher.Constraint("Coincident", 2, 2, 3, 1),
    Sketcher.Constraint("Coincident", 3, 2, 0, 1),
    Sketcher.Constraint("Coincident", 4, 2, 5, 1),
    Sketcher.Constraint("Coincident", 5, 2, 6, 1),
    Sketcher.Constraint("Coincident", 6, 2, 7, 1),
    Sketcher.Constraint("Coincident", 7, 2, 4, 1),
    Sketcher.Constraint("Vertical", 0),
    Sketcher.Constraint("Horizontal", 1),
    Sketcher.Constraint("Vertical", 2),
    Sketcher.Constraint("Horizontal", 3),
    Sketcher.Constraint("Horizontal", 4),
    Sketcher.Constraint("Vertical", 5),
    Sketcher.Constraint("Horizontal", 6),
    Sketcher.Constraint("Vertical", 7),
    Sketcher.Constraint("Symmetric", 2, 2, 4, 2, -2),
    Sketcher.Constraint("Symmetric", 0, 2, 6, 2, -2),
    Sketcher.Constraint("Equal", 6, 0),
    Sketcher.Constraint("DistanceX", 1, 2, 1, 1, Q("18 in")),
    Sketcher.Constraint("DistanceX", 0, 2, -1, 1, Q("36 in")),
    Sketcher.Constraint("DistanceY", -1, 1, 0, 2, Q("222 in")),
])
pocket3 = doc.addObject("PartDesign::Pocket", "Pocket002")
body.addObject(pocket3)
pocket3.Profile = sketch6
pocket3.Length = Q("96 in")

sketch7 = doc.addObject("Sketcher::SketchObject", "Sketch006")
body.addObject(sketch7)
sketch7.AttachmentSupport = (doc.XZ_Plane, [""])
sketch7.MapMode = "FlatFace"
sketch7.addGeometry([
    Part.LineSegment(Vector(-833.5777, 5719.6223, 0), Vector(-914.4, 5638.8, 0)),
    Part.LineSegment(Vector(-914.4, 5638.8, 0), Vector(-1560.9784, 6285.3784, 0)),
    Part.LineSegment(Vector(-1560.9784, 6285.3784, 0), Vector(-1480.1561, 6366.2007, 0)),
    Part.LineSegment(Vector(-1480.1561, 6366.2007, 0), Vector(-833.5777, 5719.6223, 0)),
    Part.LineSegment(Vector(1480.1561, 6366.2007, 0), Vector(1560.9784, 6285.3784, 0)),
    Part.LineSegment(Vector(1560.9784, 6285.3784, 0), Vector(914.4, 5638.8, 0)),
    Part.LineSegment(Vector(914.4, 5638.8, 0), Vector(833.5777, 5719.6223, 0)),
    Part.LineSegment(Vector(833.5777, 5719.6223, 0), Vector(1480.1561, 6366.2007, 0)),
], False)
sketch7.addConstraint([
    Sketcher.Constraint("Coincident", 0, 2, 1, 1),
    Sketcher.Constraint("Coincident", 1, 2, 2, 1),
    Sketcher.Constraint("Coincident", 2, 2, 3, 1),
    Sketcher.Constraint("Coincident", 3, 2, 0, 1),
    Sketcher.Constraint("Coincident", 4, 2, 5, 1),
    Sketcher.Constraint("Coincident", 5, 2, 6, 1),
    Sketcher.Constraint("Coincident", 6, 2, 7, 1),
    Sketcher.Constraint("Coincident", 7, 2, 4, 1),
    Sketcher.Constraint("Symmetric", 1, 2, 4, 2, -2),
    Sketcher.Constraint("Symmetric", 0, 2, 5, 2, -2),
    Sketcher.Constraint("Symmetric", 3, 2, 6, 2, -2),
    Sketcher.Constraint("Symmetric", 2, 2, 7, 2, -2),
    Sketcher.Constraint("Perpendicular", 0, 1),
    Sketcher.Constraint("Perpendicular", 1, 2),
    Sketcher.Constraint("Perpendicular", 2, 3),
    Sketcher.Constraint("Parallel", 3, 4),
    Sketcher.Constraint("Distance", 1, Q("36 in")),
    Sketcher.Constraint("DistanceX", 0, 2, -1, 1, Q("36 in")),
    Sketcher.Constraint("Distance", 0, Q("4.5 in")),
    Sketcher.Constraint("DistanceY", -1, 1, 0, 2, Q("222 in")),
])
pad4 = doc.addObject("PartDesign::Pad", "Pad003")
body.addObject(pad4)
pad4.Profile = sketch7
pad4.Length = Q("72 in")
pad4.Reversed = True

sketch8 = doc.addObject("Sketcher::SketchObject", "Sketch007")
body.addObject(sketch8)
sketch8.AttachmentSupport = (doc.XZ_Plane, [""])
sketch8.MapMode = "FlatFace"
sketch8.addGeometry([
    Part.LineSegment(Vector(-457.2, -5638.8, 0), Vector(-609.6, -5638.8, 0)),
    Part.LineSegment(Vector(-609.6, -5638.8, 0), Vector(-609.6, -5486.4, 0)),
    Part.LineSegment(Vector(-609.6, -5486.4, 0), Vector(-457.2, -5486.4, 0)),
    Part.LineSegment(Vector(-457.2, -5486.4, 0), Vector(-457.2, -5638.8, 0)),
    Part.LineSegment(Vector(609.6, -5638.8, 0), Vector(457.2, -5638.8, 0)),
    Part.LineSegment(Vector(457.2, -5638.8, 0), Vector(457.2, -5486.4, 0)),
    Part.LineSegment(Vector(457.2, -5486.4, 0), Vector(609.6, -5486.4, 0)),
    Part.LineSegment(Vector(609.6, -5486.4, 0), Vector(609.6, -5638.8, 0)),
], False)
sketch8.addConstraint([
    Sketcher.Constraint("Coincident", 0, 2, 1, 1),
    Sketcher.Constraint("Coincident", 1, 2, 2, 1),
    Sketcher.Constraint("Coincident", 2, 2, 3, 1),
    Sketcher.Constraint("Coincident", 3, 2, 0, 1),
    Sketcher.Constraint("Coincident", 4, 2, 5, 1),
    Sketcher.Constraint("Coincident", 5, 2, 6, 1),
    Sketcher.Constraint("Coincident", 6, 2, 7, 1),
    Sketcher.Constraint("Coincident", 7, 2, 4, 1),
    Sketcher.Constraint("Horizontal", 0),
    Sketcher.Constraint("Vertical", 1),
    Sketcher.Constraint("Horizontal", 2),
    Sketcher.Constraint("Vertical", 3),
    Sketcher.Constraint("Horizontal", 4),
    Sketcher.Constraint("Vertical", 5),
    Sketcher.Constraint("Horizontal", 6),
    Sketcher.Constraint("Vertical", 7),
    Sketcher.Constraint("Symmetric", 3, 2, 4, 2, -2),
    Sketcher.Constraint("Symmetric", 1, 2, 6, 2, -2),
    Sketcher.Constraint("Equal", 6, 1),
    Sketcher.Constraint("DistanceX", 0, 2, 0, 1, Q("6 in")),
    Sketcher.Constraint("DistanceX", 2, 2, -1, 1, Q("18 in")),
    Sketcher.Constraint("DistanceY", 0, 2, -1, 1, Q("222 in")),
])
pad5 = doc.addObject("PartDesign::Pad", "Pad004")
body.addObject(pad5)
pad5.Profile = sketch8
pad5.Length = Q("96 in")
pad5.Reversed = True

sketch9 = doc.addObject("Sketcher::SketchObject", "Sketch008")
body.addObject(sketch9)
sketch9.AttachmentSupport = (doc.XZ_Plane, [""])
sketch9.MapMode = "FlatFace"
sketch9.AttachmentOffset = App.Placement(Vector(0, 0, -96 * 25.4), App.Rotation())
sketch9.addGeometry([
    Part.LineSegment(Vector(-609.6, -5638.8, 0), Vector(609.6, -5638.8, 0)),
    Part.LineSegment(Vector(609.6, -5638.8, 0), Vector(609.6, -6096, 0)),
    Part.LineSegment(Vector(609.6, -6096, 0), Vector(-609.6, -6096, 0)),
    Part.LineSegment(Vector(-609.6, -6096, 0), Vector(-609.6, -5638.8, 0)),
], False)
sketch9.addConstraint([
    Sketcher.Constraint("Coincident", 0, 2, 1, 1),
    Sketcher.Constraint("Coincident", 1, 2, 2, 1),
    Sketcher.Constraint("Coincident", 2, 2, 3, 1),
    Sketcher.Constraint("Coincident", 3, 2, 0, 1),
    Sketcher.Constraint("Horizontal", 0),
    Sketcher.Constraint("Vertical", 1),
    Sketcher.Constraint("Horizontal", 2),
    Sketcher.Constraint("Vertical", 3),
    Sketcher.Constraint("DistanceX", 0, 1, 0, 2, Q("48 in")),
    Sketcher.Constraint("DistanceY", 1, 2, 1, 1, Q("18 in")),
    Sketcher.Constraint("DistanceX", -1, 1, 0, 2, Q("24 in")),
    Sketcher.Constraint("DistanceY", 0, 2, -1, 1, Q("222 in")),
])
pocket4 = doc.addObject("PartDesign::Pocket", "Pocket003")
body.addObject(pocket4)
pocket4.Profile = sketch9
pocket4.Length = Q("80 in")
pocket4.Reversed = True

sketch10 = doc.addObject("Sketcher::SketchObject", "Sketch009")
body.addObject(sketch10)
sketch10.AttachmentSupport = (doc.XZ_Plane, [""])
sketch10.MapMode = "FlatFace"
sketch10.addGeometry([
    Part.LineSegment(Vector(632.0012, -6543.5853, 0), Vector(348.5311, -5674.2338, 0)),
    Part.LineSegment(Vector(348.5311, -5674.2338, 0), Vector(457.2, -5638.8, 0)),
    Part.LineSegment(Vector(457.2, -5638.8, 0), Vector(740.6702, -6508.1515, 0)),
    Part.LineSegment(Vector(740.6702, -6508.1515, 0), Vector(632.0012, -6543.5853, 0)),
], False)
sketch10.addConstraint([
    Sketcher.Constraint("Coincident", 0, 2, 1, 1),
    Sketcher.Constraint("Coincident", 1, 2, 2, 1),
    Sketcher.Constraint("Coincident", 2, 2, 3, 1),
    Sketcher.Constraint("Coincident", 3, 2, 0, 1),
    Sketcher.Constraint("Perpendicular", 0, 1),
    Sketcher.Constraint("Perpendicular", 1, 2),
    Sketcher.Constraint("Perpendicular", 2, 3),
    Sketcher.Constraint("Distance", 0, Q("36 in")),
    Sketcher.Constraint("DistanceX", -1, 1, 1, 2, Q("18 in")),
    Sketcher.Constraint("Distance", 1, Q("4.5 in")),
    Sketcher.Constraint("DistanceY", 1, 2, -1, 1, Q("222 in")),
    Sketcher.Constraint("Angle", 0, Q("108.0596 deg")),
])
pad6 = doc.addObject("PartDesign::Pad", "Pad005")
body.addObject(pad6)
pad6.Profile = sketch10
pad6.Length = Q("80 in")
pad6.Reversed = True

sketch11 = doc.addObject("Sketcher::SketchObject", "Sketch010")
body.addObject(sketch11)
sketch11.AttachmentSupport = (doc.XZ_Plane, [""])
sketch11.MapMode = "FlatFace"
sketch11.AttachmentOffset = App.Placement(Vector(0, 0, -96 * 25.4), App.Rotation())
sketch11.addGeometry([
    Part.LineSegment(Vector(457.2, -5638.8, 0), Vector(-457.2, -5638.8, 0)),
    Part.LineSegment(Vector(-457.2, -5638.8, 0), Vector(-457.2, -5486.4, 0)),
    Part.LineSegment(Vector(-457.2, -5486.4, 0), Vector(457.2, -5486.4, 0)),
    Part.LineSegment(Vector(457.2, -5486.4, 0), Vector(457.2, -5638.8, 0)),
], False)
sketch11.addConstraint([
    Sketcher.Constraint("Coincident", 0, 2, 1, 1),
    Sketcher.Constraint("Coincident", 1, 2, 2, 1),
    Sketcher.Constraint("Coincident", 2, 2, 3, 1),
    Sketcher.Constraint("Coincident", 3, 2, 0, 1),
    Sketcher.Constraint("Horizontal", 0),
    Sketcher.Constraint("Vertical", 1),
    Sketcher.Constraint("Horizontal", 2),
    Sketcher.Constraint("Vertical", 3),
    Sketcher.Constraint("DistanceX", 0, 2, 0, 1, Q("36 in")),
    Sketcher.Constraint("DistanceY", 1, 1, 1, 2, Q("6 in")),
    Sketcher.Constraint("DistanceX", 0, 2, -1, 1, Q("18 in")),
    Sketcher.Constraint("DistanceY", 0, 2, -1, 1, Q("222 in")),
])
pocket5 = doc.addObject("PartDesign::Pocket", "Pocket004")
body.addObject(pocket5)
pocket5.Profile = sketch11
pocket5.Length = Q("16 in")
pocket5.Reversed = True

doc.recompute()
